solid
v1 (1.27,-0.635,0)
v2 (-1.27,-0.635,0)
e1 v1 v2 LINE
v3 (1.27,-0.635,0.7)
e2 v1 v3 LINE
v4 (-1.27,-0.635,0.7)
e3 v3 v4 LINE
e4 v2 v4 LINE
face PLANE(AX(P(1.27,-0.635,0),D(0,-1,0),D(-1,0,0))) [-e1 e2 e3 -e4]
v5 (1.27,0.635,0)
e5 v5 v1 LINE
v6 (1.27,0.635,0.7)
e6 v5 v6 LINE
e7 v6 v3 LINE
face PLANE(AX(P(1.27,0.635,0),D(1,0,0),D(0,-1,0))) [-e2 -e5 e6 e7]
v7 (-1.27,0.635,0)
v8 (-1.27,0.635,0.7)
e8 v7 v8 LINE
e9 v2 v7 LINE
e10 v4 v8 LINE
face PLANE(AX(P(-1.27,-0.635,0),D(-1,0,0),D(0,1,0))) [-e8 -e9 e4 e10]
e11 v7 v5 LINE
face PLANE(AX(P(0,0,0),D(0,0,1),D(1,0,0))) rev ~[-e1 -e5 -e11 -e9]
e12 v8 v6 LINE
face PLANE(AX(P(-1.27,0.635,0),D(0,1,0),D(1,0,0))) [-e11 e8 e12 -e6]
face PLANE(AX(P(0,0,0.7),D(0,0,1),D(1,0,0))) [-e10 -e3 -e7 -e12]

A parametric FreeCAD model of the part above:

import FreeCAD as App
import Part
import Sketcher
Q = App.Units.Quantity

doc = App.newDocument("Part")
body = doc.addObject("PartDesign::Body", "Body")

sketch1 = body.newObject("Sketcher::SketchObject", "Sketch")
sketch1.AttachmentSupport = (doc.getObject("XY_Plane"), [""])
sketch1.MapMode = "FlatFace"
sketch1.addGeometry(Part.LineSegment(App.Vector(1.3, 0.6, 0), App.Vector(-1.3, 0.6, 0)), False)
sketch1.addGeometry(Part.LineSegment(App.Vector(-1.3, 0.6, 0), App.Vector(-1.3, -0.6, 0)), False)
sketch1.addGeometry(Part.LineSegment(App.Vector(-1.3, -0.6, 0), App.Vector(1.3, -0.6, 0)), False)
sketch1.addGeometry(Part.LineSegment(App.Vector(1.3, -0.6, 0), App.Vector(1.3, 0.6, 0)), False)
sketch1.addConstraint(Sketcher.Constraint("Coincident", 0, 2, 1, 1))
sketch1.addConstraint(Sketcher.Constraint("Coincident", 1, 2, 2, 1))
sketch1.addConstraint(Sketcher.Constraint("Coincident", 2, 2, 3, 1))
sketch1.addConstraint(Sketcher.Constraint("Coincident", 3, 2, 0, 1))
sketch1.addConstraint(Sketcher.Constraint("Horizontal", 0))
sketch1.addConstraint(Sketcher.Constraint("Vertical", 1))
sketch1.addConstraint(Sketcher.Constraint("Horizontal", 2))
sketch1.addConstraint(Sketcher.Constraint("Vertical", 3))
sketch1.addConstraint(Sketcher.Constraint("Symmetric", 0, 2, 2, 2, -1, 1))
sketch1.addConstraint(Sketcher.Constraint("DistanceX", 0, 2, 0, 1, Q("0.1 in")))
sketch1.addConstraint(Sketcher.Constraint("DistanceY", 1, 2, 1, 1, Q("0.05 in")))
pad1 = body.newObject("PartDesign::Pad", "Pad")
pad1.Profile = sketch1
pad1.Length = 0.7

doc.recompute()
